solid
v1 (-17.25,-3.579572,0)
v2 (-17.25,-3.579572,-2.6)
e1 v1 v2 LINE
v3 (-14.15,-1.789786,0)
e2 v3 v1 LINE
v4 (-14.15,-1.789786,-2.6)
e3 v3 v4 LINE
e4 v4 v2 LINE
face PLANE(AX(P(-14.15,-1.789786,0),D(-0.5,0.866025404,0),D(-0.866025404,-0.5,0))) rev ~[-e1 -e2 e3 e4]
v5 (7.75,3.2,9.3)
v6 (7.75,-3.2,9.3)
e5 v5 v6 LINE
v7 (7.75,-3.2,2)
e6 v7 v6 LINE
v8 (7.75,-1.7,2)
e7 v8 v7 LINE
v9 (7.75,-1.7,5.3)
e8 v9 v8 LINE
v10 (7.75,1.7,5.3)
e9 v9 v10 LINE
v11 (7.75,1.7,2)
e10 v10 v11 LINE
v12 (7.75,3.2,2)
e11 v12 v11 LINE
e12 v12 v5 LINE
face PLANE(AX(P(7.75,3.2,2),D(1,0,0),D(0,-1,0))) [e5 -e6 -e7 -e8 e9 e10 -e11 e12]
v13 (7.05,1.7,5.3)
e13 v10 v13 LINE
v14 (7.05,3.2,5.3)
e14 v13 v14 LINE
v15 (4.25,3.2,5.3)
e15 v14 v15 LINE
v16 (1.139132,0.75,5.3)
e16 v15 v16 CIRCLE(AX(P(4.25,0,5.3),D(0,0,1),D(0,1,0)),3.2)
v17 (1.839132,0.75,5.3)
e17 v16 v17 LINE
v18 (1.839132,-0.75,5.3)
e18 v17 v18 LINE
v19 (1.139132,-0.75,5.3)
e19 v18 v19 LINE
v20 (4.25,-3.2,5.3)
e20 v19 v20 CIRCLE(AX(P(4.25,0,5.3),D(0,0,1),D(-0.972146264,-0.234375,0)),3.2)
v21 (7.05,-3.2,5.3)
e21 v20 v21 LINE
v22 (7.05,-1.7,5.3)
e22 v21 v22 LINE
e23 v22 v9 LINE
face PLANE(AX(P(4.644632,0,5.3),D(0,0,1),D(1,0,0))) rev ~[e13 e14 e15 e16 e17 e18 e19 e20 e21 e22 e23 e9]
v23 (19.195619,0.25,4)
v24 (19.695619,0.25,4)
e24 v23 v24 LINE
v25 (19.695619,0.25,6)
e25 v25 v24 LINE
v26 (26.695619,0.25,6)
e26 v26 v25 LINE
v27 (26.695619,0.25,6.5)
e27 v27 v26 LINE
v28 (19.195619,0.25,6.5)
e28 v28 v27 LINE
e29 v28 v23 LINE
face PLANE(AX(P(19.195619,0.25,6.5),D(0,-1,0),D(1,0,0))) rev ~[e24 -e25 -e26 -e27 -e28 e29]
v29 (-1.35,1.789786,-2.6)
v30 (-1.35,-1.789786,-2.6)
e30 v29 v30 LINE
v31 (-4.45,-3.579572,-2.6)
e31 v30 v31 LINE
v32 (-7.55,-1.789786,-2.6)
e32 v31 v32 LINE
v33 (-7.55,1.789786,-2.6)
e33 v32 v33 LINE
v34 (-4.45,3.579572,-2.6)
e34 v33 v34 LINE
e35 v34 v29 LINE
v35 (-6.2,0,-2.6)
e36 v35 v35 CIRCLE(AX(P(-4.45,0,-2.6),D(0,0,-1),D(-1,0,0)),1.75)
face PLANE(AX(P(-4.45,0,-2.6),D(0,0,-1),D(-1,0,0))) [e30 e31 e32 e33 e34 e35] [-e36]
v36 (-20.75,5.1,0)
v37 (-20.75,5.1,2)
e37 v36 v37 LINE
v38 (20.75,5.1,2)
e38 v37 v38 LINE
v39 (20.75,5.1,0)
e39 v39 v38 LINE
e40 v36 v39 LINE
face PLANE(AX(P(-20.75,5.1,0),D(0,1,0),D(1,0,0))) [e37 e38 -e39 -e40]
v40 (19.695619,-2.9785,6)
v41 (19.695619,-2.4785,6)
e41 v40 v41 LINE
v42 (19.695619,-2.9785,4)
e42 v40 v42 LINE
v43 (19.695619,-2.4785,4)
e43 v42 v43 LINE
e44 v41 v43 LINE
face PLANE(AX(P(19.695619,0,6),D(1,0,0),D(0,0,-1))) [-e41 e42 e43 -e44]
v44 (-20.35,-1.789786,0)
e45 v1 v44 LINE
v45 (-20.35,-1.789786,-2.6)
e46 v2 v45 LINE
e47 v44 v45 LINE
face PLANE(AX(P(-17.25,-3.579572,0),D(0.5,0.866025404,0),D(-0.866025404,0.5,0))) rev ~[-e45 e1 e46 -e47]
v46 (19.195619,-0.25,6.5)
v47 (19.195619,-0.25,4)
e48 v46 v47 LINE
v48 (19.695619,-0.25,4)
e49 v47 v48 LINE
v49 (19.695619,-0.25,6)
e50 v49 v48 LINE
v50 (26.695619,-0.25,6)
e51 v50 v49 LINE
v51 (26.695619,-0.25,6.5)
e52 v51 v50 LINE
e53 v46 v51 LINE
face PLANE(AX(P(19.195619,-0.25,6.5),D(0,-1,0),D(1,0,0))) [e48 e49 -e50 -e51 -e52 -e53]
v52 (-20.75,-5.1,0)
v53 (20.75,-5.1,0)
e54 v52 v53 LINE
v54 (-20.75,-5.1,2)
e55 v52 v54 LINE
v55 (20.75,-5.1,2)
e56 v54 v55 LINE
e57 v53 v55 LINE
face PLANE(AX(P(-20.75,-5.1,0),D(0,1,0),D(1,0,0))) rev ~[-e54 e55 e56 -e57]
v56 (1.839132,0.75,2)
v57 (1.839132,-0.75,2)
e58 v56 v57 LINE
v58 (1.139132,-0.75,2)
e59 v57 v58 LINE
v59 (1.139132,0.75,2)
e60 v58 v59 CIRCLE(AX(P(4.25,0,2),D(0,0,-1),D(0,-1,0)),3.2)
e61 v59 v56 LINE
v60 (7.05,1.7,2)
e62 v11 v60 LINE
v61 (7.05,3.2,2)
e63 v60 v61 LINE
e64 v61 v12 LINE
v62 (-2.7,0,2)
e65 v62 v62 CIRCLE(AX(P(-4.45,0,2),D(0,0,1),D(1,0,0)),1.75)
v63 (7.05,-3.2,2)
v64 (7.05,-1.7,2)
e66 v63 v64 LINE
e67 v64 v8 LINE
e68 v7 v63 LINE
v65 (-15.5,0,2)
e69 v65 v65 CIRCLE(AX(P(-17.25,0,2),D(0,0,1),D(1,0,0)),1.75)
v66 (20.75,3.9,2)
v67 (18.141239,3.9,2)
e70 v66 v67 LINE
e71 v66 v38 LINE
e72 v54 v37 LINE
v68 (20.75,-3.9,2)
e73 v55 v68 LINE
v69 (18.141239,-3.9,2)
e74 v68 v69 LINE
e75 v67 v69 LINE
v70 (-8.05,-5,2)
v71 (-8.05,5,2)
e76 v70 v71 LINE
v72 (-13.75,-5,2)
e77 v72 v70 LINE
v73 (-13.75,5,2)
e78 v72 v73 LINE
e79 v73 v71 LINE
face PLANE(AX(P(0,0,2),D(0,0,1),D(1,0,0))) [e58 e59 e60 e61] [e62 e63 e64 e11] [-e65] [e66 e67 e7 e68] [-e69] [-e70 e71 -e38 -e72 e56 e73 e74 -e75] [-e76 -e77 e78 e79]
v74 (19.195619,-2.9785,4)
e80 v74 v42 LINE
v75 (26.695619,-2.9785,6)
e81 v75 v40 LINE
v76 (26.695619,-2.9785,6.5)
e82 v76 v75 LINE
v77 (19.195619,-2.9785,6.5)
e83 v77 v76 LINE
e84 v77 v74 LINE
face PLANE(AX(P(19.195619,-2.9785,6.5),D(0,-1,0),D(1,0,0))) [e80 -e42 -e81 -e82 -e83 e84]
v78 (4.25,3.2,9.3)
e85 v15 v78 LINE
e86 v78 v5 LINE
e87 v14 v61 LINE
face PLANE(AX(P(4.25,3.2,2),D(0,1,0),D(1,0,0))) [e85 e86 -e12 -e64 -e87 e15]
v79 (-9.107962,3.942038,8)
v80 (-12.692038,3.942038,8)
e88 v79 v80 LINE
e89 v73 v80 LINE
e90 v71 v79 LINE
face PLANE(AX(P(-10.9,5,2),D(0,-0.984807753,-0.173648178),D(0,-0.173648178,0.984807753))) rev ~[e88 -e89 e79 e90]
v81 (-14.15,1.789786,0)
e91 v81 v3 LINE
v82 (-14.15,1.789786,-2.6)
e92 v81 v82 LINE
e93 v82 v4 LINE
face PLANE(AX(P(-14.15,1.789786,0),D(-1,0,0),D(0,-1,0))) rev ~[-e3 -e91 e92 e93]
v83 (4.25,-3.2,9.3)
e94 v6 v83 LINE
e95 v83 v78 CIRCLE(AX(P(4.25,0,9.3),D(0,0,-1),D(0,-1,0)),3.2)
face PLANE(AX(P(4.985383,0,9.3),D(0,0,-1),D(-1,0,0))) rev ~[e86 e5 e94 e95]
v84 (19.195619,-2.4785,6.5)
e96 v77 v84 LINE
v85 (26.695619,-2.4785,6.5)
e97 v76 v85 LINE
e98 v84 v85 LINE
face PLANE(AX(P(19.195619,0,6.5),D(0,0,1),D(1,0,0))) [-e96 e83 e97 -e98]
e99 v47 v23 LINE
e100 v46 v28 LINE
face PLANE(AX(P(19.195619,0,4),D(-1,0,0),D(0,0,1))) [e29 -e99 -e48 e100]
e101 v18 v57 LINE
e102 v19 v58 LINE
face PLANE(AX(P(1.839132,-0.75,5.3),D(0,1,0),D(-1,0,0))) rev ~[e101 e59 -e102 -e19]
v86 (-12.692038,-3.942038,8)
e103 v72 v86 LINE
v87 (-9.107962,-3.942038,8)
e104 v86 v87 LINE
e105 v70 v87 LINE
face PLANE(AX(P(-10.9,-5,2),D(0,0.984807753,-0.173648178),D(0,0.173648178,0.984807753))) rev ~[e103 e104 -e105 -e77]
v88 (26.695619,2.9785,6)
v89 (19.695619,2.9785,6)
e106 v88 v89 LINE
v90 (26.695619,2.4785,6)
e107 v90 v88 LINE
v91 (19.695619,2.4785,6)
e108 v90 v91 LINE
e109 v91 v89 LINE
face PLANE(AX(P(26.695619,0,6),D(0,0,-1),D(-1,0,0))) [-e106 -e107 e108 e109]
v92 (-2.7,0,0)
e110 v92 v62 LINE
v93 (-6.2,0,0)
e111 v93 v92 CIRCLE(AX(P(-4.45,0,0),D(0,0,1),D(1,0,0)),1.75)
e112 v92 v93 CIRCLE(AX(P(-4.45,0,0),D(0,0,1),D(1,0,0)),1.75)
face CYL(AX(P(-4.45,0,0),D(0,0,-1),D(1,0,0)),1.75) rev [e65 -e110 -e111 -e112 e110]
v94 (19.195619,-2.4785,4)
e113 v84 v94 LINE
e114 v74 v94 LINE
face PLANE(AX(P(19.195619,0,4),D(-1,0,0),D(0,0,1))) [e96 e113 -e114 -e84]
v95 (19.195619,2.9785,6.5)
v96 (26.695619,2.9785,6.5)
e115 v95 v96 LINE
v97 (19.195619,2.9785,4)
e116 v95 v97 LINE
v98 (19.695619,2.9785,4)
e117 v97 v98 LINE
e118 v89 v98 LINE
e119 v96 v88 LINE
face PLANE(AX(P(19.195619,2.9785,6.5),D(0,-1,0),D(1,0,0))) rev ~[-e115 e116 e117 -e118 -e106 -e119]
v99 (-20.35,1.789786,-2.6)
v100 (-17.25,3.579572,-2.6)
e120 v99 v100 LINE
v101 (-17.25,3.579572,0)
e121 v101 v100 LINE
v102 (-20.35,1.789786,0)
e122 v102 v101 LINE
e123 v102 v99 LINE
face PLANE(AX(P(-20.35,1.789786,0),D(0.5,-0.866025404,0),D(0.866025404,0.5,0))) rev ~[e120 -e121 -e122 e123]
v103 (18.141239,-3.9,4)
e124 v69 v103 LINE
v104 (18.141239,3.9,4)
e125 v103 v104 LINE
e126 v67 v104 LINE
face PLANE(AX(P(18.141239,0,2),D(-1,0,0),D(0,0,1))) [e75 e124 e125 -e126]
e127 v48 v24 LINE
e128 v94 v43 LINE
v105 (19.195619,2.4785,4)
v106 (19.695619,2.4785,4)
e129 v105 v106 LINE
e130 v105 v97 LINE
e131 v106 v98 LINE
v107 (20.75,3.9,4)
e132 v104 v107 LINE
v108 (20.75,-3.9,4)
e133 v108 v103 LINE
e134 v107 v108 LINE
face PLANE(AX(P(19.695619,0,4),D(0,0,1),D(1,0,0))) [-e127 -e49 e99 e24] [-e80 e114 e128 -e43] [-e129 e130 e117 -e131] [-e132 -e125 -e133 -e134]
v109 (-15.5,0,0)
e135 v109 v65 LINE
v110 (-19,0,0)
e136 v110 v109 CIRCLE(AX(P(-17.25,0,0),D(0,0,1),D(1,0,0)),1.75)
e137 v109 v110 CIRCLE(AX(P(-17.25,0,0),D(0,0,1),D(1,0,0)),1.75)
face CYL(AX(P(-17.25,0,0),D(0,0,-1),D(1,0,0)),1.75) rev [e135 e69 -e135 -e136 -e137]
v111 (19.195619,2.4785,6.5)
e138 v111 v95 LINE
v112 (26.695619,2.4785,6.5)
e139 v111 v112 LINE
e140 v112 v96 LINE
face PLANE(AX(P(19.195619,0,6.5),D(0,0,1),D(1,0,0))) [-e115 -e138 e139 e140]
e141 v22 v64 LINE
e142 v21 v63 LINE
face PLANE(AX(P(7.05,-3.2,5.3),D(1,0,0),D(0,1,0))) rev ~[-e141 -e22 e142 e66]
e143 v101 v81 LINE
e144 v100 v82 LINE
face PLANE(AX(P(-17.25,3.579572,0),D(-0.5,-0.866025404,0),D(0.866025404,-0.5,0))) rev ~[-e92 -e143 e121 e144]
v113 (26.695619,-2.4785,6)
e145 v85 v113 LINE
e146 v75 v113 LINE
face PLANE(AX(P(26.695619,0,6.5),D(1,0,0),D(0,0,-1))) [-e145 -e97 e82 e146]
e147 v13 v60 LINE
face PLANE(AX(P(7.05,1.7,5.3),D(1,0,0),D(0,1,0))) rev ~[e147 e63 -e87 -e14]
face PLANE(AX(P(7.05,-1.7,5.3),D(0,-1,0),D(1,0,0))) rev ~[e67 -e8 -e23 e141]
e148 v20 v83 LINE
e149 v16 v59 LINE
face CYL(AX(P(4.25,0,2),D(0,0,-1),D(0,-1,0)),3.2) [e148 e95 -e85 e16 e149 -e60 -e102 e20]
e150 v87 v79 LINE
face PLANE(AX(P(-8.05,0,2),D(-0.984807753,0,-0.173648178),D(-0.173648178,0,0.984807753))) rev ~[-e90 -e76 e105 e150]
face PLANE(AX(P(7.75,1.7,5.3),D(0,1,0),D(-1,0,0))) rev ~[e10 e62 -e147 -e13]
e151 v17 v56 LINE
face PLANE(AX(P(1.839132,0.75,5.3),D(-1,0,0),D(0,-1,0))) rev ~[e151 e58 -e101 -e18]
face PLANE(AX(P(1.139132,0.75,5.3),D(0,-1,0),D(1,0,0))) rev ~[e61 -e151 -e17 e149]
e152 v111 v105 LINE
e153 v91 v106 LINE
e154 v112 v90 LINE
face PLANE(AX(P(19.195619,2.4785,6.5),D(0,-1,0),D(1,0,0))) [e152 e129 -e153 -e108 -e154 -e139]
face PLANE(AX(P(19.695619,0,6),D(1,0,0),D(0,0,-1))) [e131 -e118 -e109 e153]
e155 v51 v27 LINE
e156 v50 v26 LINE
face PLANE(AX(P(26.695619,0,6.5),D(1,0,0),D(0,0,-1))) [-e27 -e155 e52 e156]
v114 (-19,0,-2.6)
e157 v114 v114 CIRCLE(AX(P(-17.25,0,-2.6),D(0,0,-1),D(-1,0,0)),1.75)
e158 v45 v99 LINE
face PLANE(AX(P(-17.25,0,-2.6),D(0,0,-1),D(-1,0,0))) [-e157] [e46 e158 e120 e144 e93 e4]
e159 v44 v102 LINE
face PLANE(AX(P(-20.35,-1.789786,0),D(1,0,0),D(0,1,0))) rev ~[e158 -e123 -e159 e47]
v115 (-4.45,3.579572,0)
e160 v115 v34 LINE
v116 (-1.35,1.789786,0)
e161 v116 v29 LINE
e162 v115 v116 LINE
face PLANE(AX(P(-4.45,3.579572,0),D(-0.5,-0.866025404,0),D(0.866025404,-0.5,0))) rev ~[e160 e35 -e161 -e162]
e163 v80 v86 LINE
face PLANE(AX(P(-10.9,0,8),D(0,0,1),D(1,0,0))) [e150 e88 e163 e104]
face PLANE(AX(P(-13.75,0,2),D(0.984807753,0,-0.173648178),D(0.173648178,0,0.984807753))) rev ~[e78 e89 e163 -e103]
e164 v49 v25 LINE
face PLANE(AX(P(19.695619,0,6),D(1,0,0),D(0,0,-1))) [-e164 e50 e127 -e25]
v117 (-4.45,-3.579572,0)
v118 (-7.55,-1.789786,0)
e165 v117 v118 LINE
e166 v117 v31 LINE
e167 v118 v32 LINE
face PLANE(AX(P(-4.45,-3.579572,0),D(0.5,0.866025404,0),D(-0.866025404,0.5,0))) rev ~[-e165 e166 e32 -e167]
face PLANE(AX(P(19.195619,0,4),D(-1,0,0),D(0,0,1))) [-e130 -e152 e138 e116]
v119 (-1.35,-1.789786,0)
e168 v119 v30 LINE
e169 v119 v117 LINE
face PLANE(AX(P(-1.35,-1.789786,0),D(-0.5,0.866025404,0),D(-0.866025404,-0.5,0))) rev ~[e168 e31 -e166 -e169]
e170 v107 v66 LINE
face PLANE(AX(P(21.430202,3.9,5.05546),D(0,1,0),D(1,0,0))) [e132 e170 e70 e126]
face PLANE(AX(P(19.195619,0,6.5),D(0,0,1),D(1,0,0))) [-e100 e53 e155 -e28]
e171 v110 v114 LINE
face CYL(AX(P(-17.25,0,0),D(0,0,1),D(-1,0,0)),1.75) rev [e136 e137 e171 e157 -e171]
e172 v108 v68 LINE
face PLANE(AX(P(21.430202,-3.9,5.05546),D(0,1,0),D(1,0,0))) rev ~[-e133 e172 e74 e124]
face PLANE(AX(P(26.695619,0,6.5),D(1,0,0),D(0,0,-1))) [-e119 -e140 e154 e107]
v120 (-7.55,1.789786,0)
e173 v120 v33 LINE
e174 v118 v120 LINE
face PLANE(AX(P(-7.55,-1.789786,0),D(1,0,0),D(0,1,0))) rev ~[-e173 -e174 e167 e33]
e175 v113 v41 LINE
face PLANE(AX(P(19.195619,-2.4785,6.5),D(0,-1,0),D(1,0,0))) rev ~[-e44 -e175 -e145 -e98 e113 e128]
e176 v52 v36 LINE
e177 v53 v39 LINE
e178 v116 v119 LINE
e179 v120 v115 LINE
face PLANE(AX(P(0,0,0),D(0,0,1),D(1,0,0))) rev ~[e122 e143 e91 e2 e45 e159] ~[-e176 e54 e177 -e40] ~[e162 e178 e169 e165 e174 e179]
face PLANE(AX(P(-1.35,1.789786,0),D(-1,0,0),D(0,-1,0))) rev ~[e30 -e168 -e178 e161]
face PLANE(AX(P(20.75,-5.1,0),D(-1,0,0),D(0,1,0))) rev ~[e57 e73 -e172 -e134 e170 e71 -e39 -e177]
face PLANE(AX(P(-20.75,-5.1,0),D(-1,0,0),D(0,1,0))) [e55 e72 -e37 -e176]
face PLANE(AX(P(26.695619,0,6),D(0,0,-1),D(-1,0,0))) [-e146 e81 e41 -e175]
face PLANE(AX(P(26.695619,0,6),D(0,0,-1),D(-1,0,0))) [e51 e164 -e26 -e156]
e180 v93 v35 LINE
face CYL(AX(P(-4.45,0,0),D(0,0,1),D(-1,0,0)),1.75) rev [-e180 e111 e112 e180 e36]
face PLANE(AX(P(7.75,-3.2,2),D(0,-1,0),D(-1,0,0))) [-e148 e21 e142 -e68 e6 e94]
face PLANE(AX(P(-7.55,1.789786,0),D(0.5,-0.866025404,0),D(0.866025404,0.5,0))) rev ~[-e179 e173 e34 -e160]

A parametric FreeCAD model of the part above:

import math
import FreeCAD as App
import Part
import Sketcher
Q = App.Units.Quantity

doc = App.newDocument("Part")
params = doc.addObject("Spreadsheet::Sheet", "Params")
for row, (alias, value) in enumerate([
    ("sketch1_diameter", "3.5 mm"),
    ("sketch1_width", "41.5 mm"),
    ("sketch1_height", "10.2 mm"),
    ("pad1_length", "2 mm"),
    ("sketch2_height", "10 mm"),
    ("sketch2_width", "5.7 mm"),
    ("pad2_length", "6 mm"),
    ("pad2_taper", "-10 deg"),
    ("sketch3_radius", "3.2 mm"),
    ("sketch3_width", "3.5 mm"),
    ("pad3_length", "7.3 mm"),
    ("sketch4_radius", "3.2 mm"),
    ("sketch4_width", "0.7 mm"),
    ("sketch4_width2", "2.8 mm"),
    ("sketch4_height", "1.5 mm"),
    ("pocket1_length", "3.3 mm"),
    ("sketch5_width", "7 mm"),
    ("sketch5_height", "2 mm"),
    ("sketch5_width2", "7.5 mm"),
    ("sketch5_height2", "2.5 mm"),
    ("pad4_length", "7.8 mm"),
    ("sketch6_width", "7.5 mm"),
    ("pocket2_length", "2.5 mm"),
    ("sketch7_diameter", "3.5 mm"),
    ("pad5_length", "2.6 mm"),
], start=1):
    params.set(f"A{row}", alias)
    params.set(f"B{row}", "=" + value)
    params.setAlias(f"B{row}", alias)

body = doc.addObject("PartDesign::Body", "Body")

# Sketch on XY plane
sketch1 = doc.addObject("Sketcher::SketchObject", "Sketch")
body.addObject(sketch1)
sketch1.AttachmentSupport = (doc.XY_Plane, [""])
sketch1.MapMode = "FlatFace"
sketch1.addGeometry(Part.LineSegment(App.Vector(-20.8, 5.1, 0), App.Vector(-20.8, -5.1, 0)), False)
sketch1.addGeometry(Part.LineSegment(App.Vector(-20.8, -5.1, 0), App.Vector(20.8, -5.1, 0)), False)
sketch1.addGeometry(Part.LineSegment(App.Vector(20.8, -5.1, 0), App.Vector(20.8, 5.1, 0)), False)
sketch1.addGeometry(Part.LineSegment(App.Vector(20.8, 5.1, 0), App.Vector(-20.8, 5.1, 0)), False)
sketch1.addGeometry(Part.Circle(App.Vector(-17.2, 0, 0), App.Vector(0, 0, 1), 1.8), False)
sketch1.addGeometry(Part.Circle(App.Vector(-4.5, 0, 0), App.Vector(0, 0, 1), 1.8), False)
sketch1.addConstraint(Sketcher.Constraint("Coincident", 0, 2, 1, 1))
sketch1.addConstraint(Sketcher.Constraint("Coincident", 1, 2, 2, 1))
sketch1.addConstraint(Sketcher.Constraint("Coincident", 2, 2, 3, 1))
sketch1.addConstraint(Sketcher.Constraint("Coincident", 3, 2, 0, 1))
sketch1.addConstraint(Sketcher.Constraint("Vertical", 0))
sketch1.addConstraint(Sketcher.Constraint("Horizontal", 1))
sketch1.addConstraint(Sketcher.Constraint("Vertical", 2))
sketch1.addConstraint(Sketcher.Constraint("Horizontal", 3))
sketch1.addConstraint(Sketcher.Constraint("Equal", 4, 5))
sketch1.addConstraint(Sketcher.Constraint("Symmetric", 0, 2, 2, 2, -1, 1))
sketch1.addConstraint(Sketcher.Constraint("PointOnObject", 4, 3, -1))
sketch1.addConstraint(Sketcher.Constraint("PointOnObject", 5, 3, -1))
sketch1.addConstraint(Sketcher.Constraint("Diameter", 4, Q("3.5 mm")))
sketch1.addConstraint(Sketcher.Constraint("DistanceX", 1, 1, 1, 2, Q("41.5 mm")))
sketch1.addConstraint(Sketcher.Constraint("DistanceY", 0, 2, 0, 1, Q("10.2 mm")))
sketch1.addConstraint(Sketcher.Constraint("DistanceX", 4, 3, 1, 2, Q("38 mm")))
sketch1.addConstraint(Sketcher.Constraint("DistanceX", 4, 3, 5, 3, Q("12.8 mm")))
sketch1.setExpression("Constraints[12]", "Params.sketch1_diameter")
sketch1.setExpression("Constraints[13]", "Params.sketch1_width")
sketch1.setExpression("Constraints[14]", "Params.sketch1_height")
pad1 = doc.addObject("PartDesign::Pad", "Pad")
body.addObject(pad1)
pad1.Profile = sketch1
pad1.setExpression("Length", "Params.pad1_length")

# Sketch on XY plane
sketch2 = doc.addObject("Sketcher::SketchObject", "Sketch001")
body.addObject(sketch2)
sketch2.AttachmentSupport = (doc.XY_Plane, [""])
sketch2.MapMode = "FlatFace"
sketch2.AttachmentOffset = App.Placement(App.Vector(0, 0, 2), App.Rotation())
sketch2.addGeometry(Part.LineSegment(App.Vector(-14, 5, 0), App.Vector(-14, -5, 0)), False)
sketch2.addGeometry(Part.LineSegment(App.Vector(-14, -5, 0), App.Vector(-8, -5, 0)), False)
sketch2.addGeometry(Part.LineSegment(App.Vector(-8, -5, 0), App.Vector(-8, 5, 0)), False)
sketch2.addGeometry(Part.LineSegment(App.Vector(-8, 5, 0), App.Vector(-14, 5, 0)), False)
sketch2.addConstraint(Sketcher.Constraint("Coincident", 0, 2, 1, 1))
sketch2.addConstraint(Sketcher.Constraint("Coincident", 1, 2, 2, 1))
sketch2.addConstraint(Sketcher.Constraint("Coincident", 2, 2, 3, 1))
sketch2.addConstraint(Sketcher.Constraint("Coincident", 3, 2, 0, 1))
sketch2.addConstraint(Sketcher.Constraint("Vertical", 0))
sketch2.addConstraint(Sketcher.Constraint("Horizontal", 1))
sketch2.addConstraint(Sketcher.Constraint("Vertical", 2))
sketch2.addConstraint(Sketcher.Constraint("Horizontal", 3))
sketch2.addConstraint(Sketcher.Constraint("DistanceY", 0, 2, 0, 1, Q("10 mm")))
sketch2.addConstraint(Sketcher.Constraint("DistanceX", 1, 1, 1, 2, Q("5.7 mm")))
sketch2.addConstraint(Sketcher.Constraint("DistanceY", 0, 2, -1, 1, Q("5 mm")))
sketch2.addConstraint(Sketcher.Constraint("DistanceX", 0, 2, -1, 1, Q("13.75 mm")))
sketch2.setExpression("Constraints[8]", "Params.sketch2_height")
sketch2.setExpression("Constraints[9]", "Params.sketch2_width")
pad2 = doc.addObject("PartDesign::Pad", "Pad001")
body.addObject(pad2)
pad2.Profile = sketch2
pad2.setExpression("Length", "Params.pad2_length")
pad2.setExpression("TaperAngle", "Params.pad2_taper")

# Sketch on XY plane
sketch3 = doc.addObject("Sketcher::SketchObject", "Sketch002")
body.addObject(sketch3)
sketch3.AttachmentSupport = (doc.XY_Plane, [""])
sketch3.MapMode = "FlatFace"
sketch3.AttachmentOffset = App.Placement(App.Vector(0, 0, 2), App.Rotation())
sketch3.addGeometry(Part.LineSegment(App.Vector(7.8, 3.2, 0), App.Vector(4.2, 3.2, 0)), False)
sketch3.addGeometry(Part.ArcOfCircle(Part.Circle(App.Vector(4.2, 0, 0), App.Vector(0, 0, 1), 3.2), math.radians(90), math.radians(270)), False)
sketch3.addGeometry(Part.LineSegment(App.Vector(4.2, -3.2, 0), App.Vector(7.8, -3.2, 0)), False)
sketch3.addGeometry(Part.LineSegment(App.Vector(7.8, -3.2, 0), App.Vector(7.8, 3.2, 0)), False)
sketch3.addConstraint(Sketcher.Constraint("Tangent", 0, 2, 1, 1))
sketch3.addConstraint(Sketcher.Constraint("Tangent", 1, 2, 2, 1))
sketch3.addConstraint(Sketcher.Constraint("Coincident", 2, 2, 3, 1))
sketch3.addConstraint(Sketcher.Constraint("Coincident", 3, 2, 0, 1))
sketch3.addConstraint(Sketcher.Constraint("Horizontal", 0))
sketch3.addConstraint(Sketcher.Constraint("Horizontal", 2))
sketch3.addConstraint(Sketcher.Constraint("Vertical", 3))
sketch3.addConstraint(Sketcher.Constraint("PointOnObject", 1, 3, -1))
sketch3.addConstraint(Sketcher.Constraint("Radius", 1, Q("3.2 mm")))
sketch3.addConstraint(Sketcher.Constraint("DistanceX", 0, 2, 0, 1, Q("3.5 mm")))
sketch3.addConstraint(Sketcher.Constraint("DistanceX", -1, 1, 1, 3, Q("4.25 mm")))
sketch3.setExpression("Constraints[8]", "Params.sketch3_radius")
sketch3.setExpression("Constraints[9]", "Params.sketch3_width")
pad3 = doc.addObject("PartDesign::Pad", "Pad002")
body.addObject(pad3)
pad3.Profile = sketch3
pad3.setExpression("Length", "Params.pad3_length")

# Sketch on XY plane
sketch4 = doc.addObject("Sketcher::SketchObject", "Sketch003")
body.addObject(sketch4)
sketch4.AttachmentSupport = (doc.XY_Plane, [""])
sketch4.MapMode = "FlatFace"
sketch4.AttachmentOffset = App.Placement(App.Vector(0, 0, 5.3), App.Rotation())
sketch4.addGeometry(Part.LineSegment(App.Vector(7, -3.2, 0), App.Vector(7, -1.7, 0)), False)
sketch4.addGeometry(Part.LineSegment(App.Vector(7, -1.7, 0), App.Vector(7.8, -1.7, 0)), False)
sketch4.addGeometry(Part.LineSegment(App.Vector(7.8, -1.7, 0), App.Vector(7.8, 1.7, 0)), False)
sketch4.addGeometry(Part.LineSegment(App.Vector(7.8, 1.7, 0), App.Vector(7, 1.7, 0)), False)
sketch4.addGeometry(Part.LineSegment(App.Vector(7, 1.7, 0), App.Vector(7, 3.2, 0)), False)
sketch4.addGeometry(Part.LineSegment(App.Vector(7, 3.2, 0), App.Vector(4.2, 3.2, 0)), False)
sketch4.addGeometry(Part.ArcOfCircle(Part.Circle(App.Vector(4.3, 0, 0), App.Vector(0, 0, 1), 3.2), math.radians(90), math.radians(166)), False)
sketch4.addGeometry(Part.LineSegment(App.Vector(1.1, 0.8, 0), App.Vector(1.8, 0.8, 0)), False)
sketch4.addGeometry(Part.LineSegment(App.Vector(1.8, 0.8, 0), App.Vector(1.8, -0.8, 0)), False)
sketch4.addGeometry(Part.LineSegment(App.Vector(1.8, -0.8, 0), App.Vector(1.1, -0.8, 0)), False)
sketch4.addGeometry(Part.ArcOfCircle(Part.Circle(App.Vector(4.3, 0, 0), App.Vector(0, 0, 1), 3.2), math.radians(-166), math.radians(-90)), False)
sketch4.addGeometry(Part.LineSegment(App.Vector(4.2, -3.2, 0), App.Vector(7, -3.2, 0)), False)
sketch4.addConstraint(Sketcher.Constraint("Coincident", 0, 2, 1, 1))
sketch4.addConstraint(Sketcher.Constraint("Coincident", 1, 2, 2, 1))
sketch4.addConstraint(Sketcher.Constraint("Coincident", 2, 2, 3, 1))
sketch4.addConstraint(Sketcher.Constraint("Coincident", 3, 2, 4, 1))
sketch4.addConstraint(Sketcher.Constraint("Coincident", 4, 2, 5, 1))
sketch4.addConstraint(Sketcher.Constraint("Tangent", 5, 2, 6, 1))
sketch4.addConstraint(Sketcher.Constraint("Coincident", 6, 2, 7, 1))
sketch4.addConstraint(Sketcher.Constraint("Coincident", 7, 2, 8, 1))
sketch4.addConstraint(Sketcher.Constraint("Coincident", 8, 2, 9, 1))
sketch4.addConstraint(Sketcher.Constraint("Coincident", 9, 2, 10, 1))
sketch4.addConstraint(Sketcher.Constraint("Tangent", 10, 2, 11, 1))
sketch4.addConstraint(Sketcher.Constraint("Coincident", 11, 2, 0, 1))
sketch4.addConstraint(Sketcher.Constraint("Vertical", 0))
sketch4.addConstraint(Sketcher.Constraint("Horizontal", 1))
sketch4.addConstraint(Sketcher.Constraint("Vertical", 2))
sketch4.addConstraint(Sketcher.Constraint("Horizontal", 3))
sketch4.addConstraint(Sketcher.Constraint("Vertical", 4))
sketch4.addConstraint(Sketcher.Constraint("Horizontal", 5))
sketch4.addConstraint(Sketcher.Constraint("Horizontal", 7))
sketch4.addConstraint(Sketcher.Constraint("Vertical", 8))
sketch4.addConstraint(Sketcher.Constraint("Horizontal", 9))
sketch4.addConstraint(Sketcher.Constraint("Horizontal", 11))
sketch4.addConstraint(Sketcher.Constraint("Coincident", 10, 3, 6, 3))
sketch4.addConstraint(Sketcher.Constraint("Equal", 6, 10))
sketch4.addConstraint(Sketcher.Constraint("Symmetric", 0, 2, 3, 2, -1))
sketch4.addConstraint(Sketcher.Constraint("Symmetric", 6, 2, 9, 2, -1))
sketch4.addConstraint(Sketcher.Constraint("Equal", 3, 7))
sketch4.addConstraint(Sketcher.Constraint("Equal", 4, 8))
sketch4.addConstraint(Sketcher.Constraint("Radius", 6, Q("3.2 mm")))
sketch4.addConstraint(Sketcher.Constraint("DistanceX", 1, 1, 1, 2, Q("0.7 mm")))
sketch4.addConstraint(Sketcher.Constraint("DistanceX", 5, 2, 5, 1, Q("2.8 mm")))
sketch4.addConstraint(Sketcher.Constraint("DistanceY", 0, 1, 0, 2, Q("1.5 mm")))
sketch4.addConstraint(Sketcher.Constraint("DistanceX", -1, 1, 6, 3, Q("4.25 mm")))
sketch4.setExpression("Constraints[28]", "Params.sketch4_radius")
sketch4.setExpression("Constraints[29]", "Params.sketch4_width")
sketch4.setExpression("Constraints[30]", "Params.sketch4_width2")
sketch4.setExpression("Constraints[31]", "Params.sketch4_height")
pocket1 = doc.addObject("PartDesign::Pocket", "Pocket")
body.addObject(pocket1)
pocket1.Profile = sketch4
pocket1.setExpression("Length", "Params.pocket1_length")

# Sketch on XZ plane
sketch5 = doc.addObject("Sketcher::SketchObject", "Sketch004")
body.addObject(sketch5)
sketch5.AttachmentSupport = (doc.XZ_Plane, [""])
sketch5.MapMode = "FlatFace"
sketch5.addGeometry(Part.LineSegment(App.Vector(18.1, 2, 0), App.Vector(18.1, 4, 0)), False)
sketch5.addGeometry(Part.LineSegment(App.Vector(18.1, 4, 0), App.Vector(19.2, 4, 0)), False)
sketch5.addGeometry(Part.LineSegment(App.Vector(19.2, 4, 0), App.Vector(19.2, 6.5, 0)), False)
sketch5.addGeometry(Part.LineSegment(App.Vector(19.2, 6.5, 0), App.Vector(26.7, 6.5, 0)), False)
sketch5.addGeometry(Part.LineSegment(App.Vector(26.7, 6.5, 0), App.Vector(26.7, 6, 0)), False)
sketch5.addGeometry(Part.LineSegment(App.Vector(26.7, 6, 0), App.Vector(19.7, 6, 0)), False)
sketch5.addGeometry(Part.LineSegment(App.Vector(19.7, 6, 0), App.Vector(19.7, 4, 0)), False)
sketch5.addGeometry(Part.LineSegment(App.Vector(19.7, 4, 0), App.Vector(20.8, 4, 0)), False)
sketch5.addGeometry(Part.LineSegment(App.Vector(20.8, 4, 0), App.Vector(20.8, 2, 0)), False)
sketch5.addGeometry(Part.LineSegment(App.Vector(20.8, 2, 0), App.Vector(18.1, 2, 0)), False)
sketch5.addConstraint(Sketcher.Constraint("Coincident", 0, 2, 1, 1))
sketch5.addConstraint(Sketcher.Constraint("Coincident", 1, 2, 2, 1))
sketch5.addConstraint(Sketcher.Constraint("Coincident", 2, 2, 3, 1))
sketch5.addConstraint(Sketcher.Constraint("Coincident", 3, 2, 4, 1))
sketch5.addConstraint(Sketcher.Constraint("Coincident", 4, 2, 5, 1))
sketch5.addConstraint(Sketcher.Constraint("Coincident", 5, 2, 6, 1))
sketch5.addConstraint(Sketcher.Constraint("Coincident", 6, 2, 7, 1))
sketch5.addConstraint(Sketcher.Constraint("Coincident", 7, 2, 8, 1))
sketch5.addConstraint(Sketcher.Constraint("Coincident", 8, 2, 9, 1))
sketch5.addConstraint(Sketcher.Constraint("Coincident", 9, 2, 0, 1))
sketch5.addConstraint(Sketcher.Constraint("Vertical", 0))
sketch5.addConstraint(Sketcher.Constraint("Horizontal", 1))
sketch5.addConstraint(Sketcher.Constraint("Vertical", 2))
sketch5.addConstraint(Sketcher.Constraint("Horizontal", 3))
sketch5.addConstraint(Sketcher.Constraint("Vertical", 4))
sketch5.addConstraint(Sketcher.Constraint("Horizontal", 5))
sketch5.addConstraint(Sketcher.Constraint("Vertical", 6))
sketch5.addConstraint(Sketcher.Constraint("Horizontal", 7))
sketch5.addConstraint(Sketcher.Constraint("Vertical", 8))
sketch5.addConstraint(Sketcher.Constraint("Horizontal", 9))
sketch5.addConstraint(Sketcher.Constraint("Horizontal", 1, 2, 6, 2))
sketch5.addConstraint(Sketcher.Constraint("Equal", 1, 7))
sketch5.addConstraint(Sketcher.Constraint("Equal", 0, 6))
sketch5.addConstraint(Sketcher.Constraint("DistanceX", 5, 2, 5, 1, Q("7 mm")))
sketch5.addConstraint(Sketcher.Constraint("DistanceY", 0, 1, 0, 2, Q("2 mm")))
sketch5.addConstraint(Sketcher.Constraint("DistanceX", 3, 1, 3, 2, Q("7.5 mm")))
sketch5.addConstraint(Sketcher.Constraint("DistanceY", 2, 1, 2, 2, Q("2.5 mm")))
sketch5.addConstraint(Sketcher.Constraint("DistanceY", -1, 1, 0, 2, Q("4 mm")))
sketch5.addConstraint(Sketcher.Constraint("DistanceX", -1, 1, 7, 2, Q("20.75 mm")))
sketch5.addConstraint(Sketcher.Constraint("DistanceX", 1, 1, 1, 2, Q("1.054381 mm")))
sketch5.setExpression("Constraints[23]", "Params.sketch5_width")
sketch5.setExpression("Constraints[24]", "Params.sketch5_height")
sketch5.setExpression("Constraints[25]", "Params.sketch5_width2")
sketch5.setExpression("Constraints[26]", "Params.sketch5_height2")
pad4 = doc.addObject("PartDesign::Pad", "Pad003")
body.addObject(pad4)
pad4.Profile = sketch5
pad4.setExpression("Length", "Params.pad4_length")
pad4.Midplane = True

# Sketch on XY plane
sketch6 = doc.addObject("Sketcher::SketchObject", "Sketch005")
body.addObject(sketch6)
sketch6.AttachmentSupport = (doc.XY_Plane, [""])
sketch6.MapMode = "FlatFace"
sketch6.AttachmentOffset = App.Placement(App.Vector(0, 0, 6.5), App.Rotation())
sketch6.addGeometry(Part.LineSegment(App.Vector(19.2, 3.9, 0), App.Vector(19.2, 3, 0)), False)
sketch6.addGeometry(Part.LineSegment(App.Vector(19.2, 3, 0), App.Vector(26.7, 3, 0)), False)
sketch6.addGeometry(Part.LineSegment(App.Vector(26.7, 3, 0), App.Vector(26.7, 3.9, 0)), False)
sketch6.addGeometry(Part.LineSegment(App.Vector(26.7, 3.9, 0), App.Vector(19.2, 3.9, 0)), False)
sketch6.addGeometry(Part.LineSegment(App.Vector(19.2, 2.5, 0), App.Vector(19.2, 0.2, 0)), False)
sketch6.addGeometry(Part.LineSegment(App.Vector(19.2, 0.2, 0), App.Vector(26.7, 0.2, 0)), False)
sketch6.addGeometry(Part.LineSegment(App.Vector(26.7, 0.2, 0), App.Vector(26.7, 2.5, 0)), False)
sketch6.addGeometry(Part.LineSegment(App.Vector(26.7, 2.5, 0), App.Vector(19.2, 2.5, 0)), False)
sketch6.addGeometry(Part.LineSegment(App.Vector(19.2, -0.2, 0), App.Vector(19.2, -2.5, 0)), False)
sketch6.addGeometry(Part.LineSegment(App.Vector(19.2, -2.5, 0), App.Vector(26.7, -2.5, 0)), False)
sketch6.addGeometry(Part.LineSegment(App.Vector(26.7, -2.5, 0), App.Vector(26.7, -0.2, 0)), False)
sketch6.addGeometry(Part.LineSegment(App.Vector(26.7, -0.2, 0), App.Vector(19.2, -0.2, 0)), False)
sketch6.addGeometry(Part.LineSegment(App.Vector(19.2, -3, 0), App.Vector(19.2, -3.9, 0)), False)
sketch6.addGeometry(Part.LineSegment(App.Vector(19.2, -3.9, 0), App.Vector(26.7, -3.9, 0)), False)
sketch6.addGeometry(Part.LineSegment(App.Vector(26.7, -3.9, 0), App.Vector(26.7, -3, 0)), False)
sketch6.addGeometry(Part.LineSegment(App.Vector(26.7, -3, 0), App.Vector(19.2, -3, 0)), False)
sketch6.addConstraint(Sketcher.Constraint("Coincident", 0, 2, 1, 1))
sketch6.addConstraint(Sketcher.Constraint("Coincident", 1, 2, 2, 1))
sketch6.addConstraint(Sketcher.Constraint("Coincident", 2, 2, 3, 1))
sketch6.addConstraint(Sketcher.Constraint("Coincident", 3, 2, 0, 1))
sketch6.addConstraint(Sketcher.Constraint("Coincident", 4, 2, 5, 1))
sketch6.addConstraint(Sketcher.Constraint("Coincident", 5, 2, 6, 1))
sketch6.addConstraint(Sketcher.Constraint("Coincident", 6, 2, 7, 1))
sketch6.addConstraint(Sketcher.Constraint("Coincident", 7, 2, 4, 1))
sketch6.addConstraint(Sketcher.Constraint("Coincident", 8, 2, 9, 1))
sketch6.addConstraint(Sketcher.Constraint("Coincident", 9, 2, 10, 1))
sketch6.addConstraint(Sketcher.Constraint("Coincident", 10, 2, 11, 1))
sketch6.addConstraint(Sketcher.Constraint("Coincident", 11, 2, 8, 1))
sketch6.addConstraint(Sketcher.Constraint("Coincident", 12, 2, 13, 1))
sketch6.addConstraint(Sketcher.Constraint("Coincident", 13, 2, 14, 1))
sketch6.addConstraint(Sketcher.Constraint("Coincident", 14, 2, 15, 1))
sketch6.addConstraint(Sketcher.Constraint("Coincident", 15, 2, 12, 1))
sketch6.addConstraint(Sketcher.Constraint("Vertical", 0))
sketch6.addConstraint(Sketcher.Constraint("Horizontal", 1))
sketch6.addConstraint(Sketcher.Constraint("Vertical", 2))
sketch6.addConstraint(Sketcher.Constraint("Horizontal", 3))
sketch6.addConstraint(Sketcher.Constraint("Vertical", 4))
sketch6.addConstraint(Sketcher.Constraint("Horizontal", 5))
sketch6.addConstraint(Sketcher.Constraint("Vertical", 6))
sketch6.addConstraint(Sketcher.Constraint("Horizontal", 7))
sketch6.addConstraint(Sketcher.Constraint("Vertical", 8))
sketch6.addConstraint(Sketcher.Constraint("Horizontal", 9))
sketch6.addConstraint(Sketcher.Constraint("Vertical", 10))
sketch6.addConstraint(Sketcher.Constraint("Horizontal", 11))
sketch6.addConstraint(Sketcher.Constraint("Vertical", 12))
sketch6.addConstraint(Sketcher.Constraint("Horizontal", 13))
sketch6.addConstraint(Sketcher.Constraint("Vertical", 14))
sketch6.addConstraint(Sketcher.Constraint("Horizontal", 15))
sketch6.addConstraint(Sketcher.Constraint("Symmetric", 7, 2, 8, 2, -1))
sketch6.addConstraint(Sketcher.Constraint("Symmetric", 5, 2, 10, 2, -1))
sketch6.addConstraint(Sketcher.Constraint("Symmetric", 3, 2, 12, 2, -1))
sketch6.addConstraint(Sketcher.Constraint("Symmetric", 1, 2, 14, 2, -1))
sketch6.addConstraint(Sketcher.Constraint("Vertical", 3, 2, 4, 2))
sketch6.addConstraint(Sketcher.Constraint("Vertical", 2, 2, 5, 2))
sketch6.addConstraint(Sketcher.Constraint("DistanceX", 1, 1, 1, 2, Q("7.5 mm")))
sketch6.addConstraint(Sketcher.Constraint("DistanceY", -1, 1, 2, 2, Q("3.9 mm")))
sketch6.addConstraint(Sketcher.Constraint("DistanceY", 6, 2, 1, 2, Q("0.5 mm")))
sketch6.addConstraint(Sketcher.Constraint("DistanceY", 10, 2, 5, 2, Q("0.5 mm")))
sketch6.addConstraint(Sketcher.Constraint("DistanceY", 0, 2, 0, 1, Q("0.9215 mm")))
sketch6.addConstraint(Sketcher.Constraint("DistanceX", -1, 1, 0, 2, Q("19.195619 mm")))
sketch6.setExpression("Constraints[38]", "Params.sketch6_width")
pocket2 = doc.addObject("PartDesign::Pocket", "Pocket001")
body.addObject(pocket2)
pocket2.Profile = sketch6
pocket2.setExpression("Length", "Params.pocket2_length")

# Sketch on XY plane
sketch7 = doc.addObject("Sketcher::SketchObject", "Sketch006")
body.addObject(sketch7)
sketch7.AttachmentSupport = (doc.XY_Plane, [""])
sketch7.MapMode = "FlatFace"
sketch7.addGeometry(Part.LineSegment(App.Vector(-7.5, 1.8, 0), App.Vector(-4.5, 3.6, 0)), False)
sketch7.addGeometry(Part.LineSegment(App.Vector(-4.5, 3.6, 0), App.Vector(-1.4, 1.8, 0)), False)
sketch7.addGeometry(Part.LineSegment(App.Vector(-1.4, 1.8, 0), App.Vector(-1.4, -1.8, 0)), False)
sketch7.addGeometry(Part.LineSegment(App.Vector(-1.4, -1.8, 0), App.Vector(-4.5, -3.6, 0)), False)
sketch7.addGeometry(Part.LineSegment(App.Vector(-4.5, -3.6, 0), App.Vector(-7.5, -1.8, 0)), False)
sketch7.addGeometry(Part.LineSegment(App.Vector(-7.5, -1.8, 0), App.Vector(-7.5, 1.8, 0)), False)
sketch7.addGeometry(Part.Circle(App.Vector(-4.5, 0, 0), App.Vector(0, 0, 1), 1.8), False)
sketch7.addGeometry(Part.LineSegment(App.Vector(-14.2, -1.8, 0), App.Vector(-17.2, -3.6, 0)), False)
sketch7.addGeometry(Part.LineSegment(App.Vector(-17.2, -3.6, 0), App.Vector(-20.4, -1.8, 0)), False)
sketch7.addGeometry(Part.LineSegment(App.Vector(-20.4, -1.8, 0), App.Vector(-20.4, 1.8, 0)), False)
sketch7.addGeometry(Part.LineSegment(App.Vector(-20.4, 1.8, 0), App.Vector(-17.2, 3.6, 0)), False)
sketch7.addGeometry(Part.LineSegment(App.Vector(-17.2, 3.6, 0), App.Vector(-14.2, 1.8, 0)), False)
sketch7.addGeometry(Part.LineSegment(App.Vector(-14.2, 1.8, 0), App.Vector(-14.2, -1.8, 0)), False)
sketch7.addGeometry(Part.Circle(App.Vector(-17.2, 0, 0), App.Vector(0, 0, 1), 1.8), False)
sketch7.addConstraint(Sketcher.Constraint("Coincident", 0, 2, 1, 1))
sketch7.addConstraint(Sketcher.Constraint("Coincident", 1, 2, 2, 1))
sketch7.addConstraint(Sketcher.Constraint("Coincident", 2, 2, 3, 1))
sketch7.addConstraint(Sketcher.Constraint("Coincident", 3, 2, 4, 1))
sketch7.addConstraint(Sketcher.Constraint("Coincident", 4, 2, 5, 1))
sketch7.addConstraint(Sketcher.Constraint("Coincident", 5, 2, 0, 1))
sketch7.addConstraint(Sketcher.Constraint("Coincident", 7, 2, 8, 1))
sketch7.addConstraint(Sketcher.Constraint("Coincident", 8, 2, 9, 1))
sketch7.addConstraint(Sketcher.Constraint("Coincident", 9, 2, 10, 1))
sketch7.addConstraint(Sketcher.Constraint("Coincident", 10, 2, 11, 1))
sketch7.addConstraint(Sketcher.Constraint("Coincident", 11, 2, 12, 1))
sketch7.addConstraint(Sketcher.Constraint("Coincident", 12, 2, 7, 1))
sketch7.addConstraint(Sketcher.Constraint("Vertical", 2))
sketch7.addConstraint(Sketcher.Constraint("Vertical", 5))
sketch7.addConstraint(Sketcher.Constraint("Vertical", 9))
sketch7.addConstraint(Sketcher.Constraint("Vertical", 12))
sketch7.addConstraint(Sketcher.Constraint("Equal", 6, 13))
sketch7.addConstraint(Sketcher.Constraint("Symmetric", 0, 2, 3, 2, -1))
sketch7.addConstraint(Sketcher.Constraint("Symmetric", 7, 2, 10, 2, -1))
sketch7.addConstraint(Sketcher.Constraint("PointOnObject", 6, 3, -1))
sketch7.addConstraint(Sketcher.Constraint("PointOnObject", 13, 3, -1))
sketch7.addConstraint(Sketcher.Constraint("Parallel", 0, 3))
sketch7.addConstraint(Sketcher.Constraint("Parallel", 1, 4))
sketch7.addConstraint(Sketcher.Constraint("Parallel", 3, 7))
sketch7.addConstraint(Sketcher.Constraint("Parallel", 4, 8))
sketch7.addConstraint(Sketcher.Constraint("Parallel", 7, 10))
sketch7.addConstraint(Sketcher.Constraint("Parallel", 8, 11))
sketch7.addConstraint(Sketcher.Constraint("Horizontal", 2, 2, 4, 2))
sketch7.addConstraint(Sketcher.Constraint("Horizontal", 1, 2, 5, 2))
sketch7.addConstraint(Sketcher.Constraint("Horizontal", 3, 2, 7, 2))
sketch7.addConstraint(Sketcher.Constraint("Horizontal", 4, 2, 8, 2))
sketch7.addConstraint(Sketcher.Constraint("Horizontal", 9, 2, 11, 2))
sketch7.addConstraint(Sketcher.Constraint("Vertical", 6, 3, 0, 2))
sketch7.addConstraint(Sketcher.Constraint("Vertical", 13, 3, 7, 2))
sketch7.addConstraint(Sketcher.Constraint("Diameter", 6, Q("3.5 mm")))
sketch7.addConstraint(Sketcher.Constraint("Angle", 0, Q("30 deg")))
sketch7.addConstraint(Sketcher.Constraint("DistanceX", 13, 3, 6, 3, Q("12.8 mm")))
sketch7.addConstraint(Sketcher.Constraint("DistanceX", 6, 3, 1, 2, Q("3.1 mm")))
sketch7.addConstraint(Sketcher.Constraint("DistanceX", 6, 3, -1, 1, Q("4.45 mm")))
sketch7.addConstraint(Sketcher.Constraint("DistanceY", 2, 2, 2, 1, Q("3.579572 mm")))
sketch7.setExpression("Constraints[34]", "Params.sketch7_diameter")
pad5 = doc.addObject("PartDesign::Pad", "Pad004")
body.addObject(pad5)
pad5.Profile = sketch7
pad5.setExpression("Length", "Params.pad5_length")
pad5.Reversed = True

doc.recompute()
